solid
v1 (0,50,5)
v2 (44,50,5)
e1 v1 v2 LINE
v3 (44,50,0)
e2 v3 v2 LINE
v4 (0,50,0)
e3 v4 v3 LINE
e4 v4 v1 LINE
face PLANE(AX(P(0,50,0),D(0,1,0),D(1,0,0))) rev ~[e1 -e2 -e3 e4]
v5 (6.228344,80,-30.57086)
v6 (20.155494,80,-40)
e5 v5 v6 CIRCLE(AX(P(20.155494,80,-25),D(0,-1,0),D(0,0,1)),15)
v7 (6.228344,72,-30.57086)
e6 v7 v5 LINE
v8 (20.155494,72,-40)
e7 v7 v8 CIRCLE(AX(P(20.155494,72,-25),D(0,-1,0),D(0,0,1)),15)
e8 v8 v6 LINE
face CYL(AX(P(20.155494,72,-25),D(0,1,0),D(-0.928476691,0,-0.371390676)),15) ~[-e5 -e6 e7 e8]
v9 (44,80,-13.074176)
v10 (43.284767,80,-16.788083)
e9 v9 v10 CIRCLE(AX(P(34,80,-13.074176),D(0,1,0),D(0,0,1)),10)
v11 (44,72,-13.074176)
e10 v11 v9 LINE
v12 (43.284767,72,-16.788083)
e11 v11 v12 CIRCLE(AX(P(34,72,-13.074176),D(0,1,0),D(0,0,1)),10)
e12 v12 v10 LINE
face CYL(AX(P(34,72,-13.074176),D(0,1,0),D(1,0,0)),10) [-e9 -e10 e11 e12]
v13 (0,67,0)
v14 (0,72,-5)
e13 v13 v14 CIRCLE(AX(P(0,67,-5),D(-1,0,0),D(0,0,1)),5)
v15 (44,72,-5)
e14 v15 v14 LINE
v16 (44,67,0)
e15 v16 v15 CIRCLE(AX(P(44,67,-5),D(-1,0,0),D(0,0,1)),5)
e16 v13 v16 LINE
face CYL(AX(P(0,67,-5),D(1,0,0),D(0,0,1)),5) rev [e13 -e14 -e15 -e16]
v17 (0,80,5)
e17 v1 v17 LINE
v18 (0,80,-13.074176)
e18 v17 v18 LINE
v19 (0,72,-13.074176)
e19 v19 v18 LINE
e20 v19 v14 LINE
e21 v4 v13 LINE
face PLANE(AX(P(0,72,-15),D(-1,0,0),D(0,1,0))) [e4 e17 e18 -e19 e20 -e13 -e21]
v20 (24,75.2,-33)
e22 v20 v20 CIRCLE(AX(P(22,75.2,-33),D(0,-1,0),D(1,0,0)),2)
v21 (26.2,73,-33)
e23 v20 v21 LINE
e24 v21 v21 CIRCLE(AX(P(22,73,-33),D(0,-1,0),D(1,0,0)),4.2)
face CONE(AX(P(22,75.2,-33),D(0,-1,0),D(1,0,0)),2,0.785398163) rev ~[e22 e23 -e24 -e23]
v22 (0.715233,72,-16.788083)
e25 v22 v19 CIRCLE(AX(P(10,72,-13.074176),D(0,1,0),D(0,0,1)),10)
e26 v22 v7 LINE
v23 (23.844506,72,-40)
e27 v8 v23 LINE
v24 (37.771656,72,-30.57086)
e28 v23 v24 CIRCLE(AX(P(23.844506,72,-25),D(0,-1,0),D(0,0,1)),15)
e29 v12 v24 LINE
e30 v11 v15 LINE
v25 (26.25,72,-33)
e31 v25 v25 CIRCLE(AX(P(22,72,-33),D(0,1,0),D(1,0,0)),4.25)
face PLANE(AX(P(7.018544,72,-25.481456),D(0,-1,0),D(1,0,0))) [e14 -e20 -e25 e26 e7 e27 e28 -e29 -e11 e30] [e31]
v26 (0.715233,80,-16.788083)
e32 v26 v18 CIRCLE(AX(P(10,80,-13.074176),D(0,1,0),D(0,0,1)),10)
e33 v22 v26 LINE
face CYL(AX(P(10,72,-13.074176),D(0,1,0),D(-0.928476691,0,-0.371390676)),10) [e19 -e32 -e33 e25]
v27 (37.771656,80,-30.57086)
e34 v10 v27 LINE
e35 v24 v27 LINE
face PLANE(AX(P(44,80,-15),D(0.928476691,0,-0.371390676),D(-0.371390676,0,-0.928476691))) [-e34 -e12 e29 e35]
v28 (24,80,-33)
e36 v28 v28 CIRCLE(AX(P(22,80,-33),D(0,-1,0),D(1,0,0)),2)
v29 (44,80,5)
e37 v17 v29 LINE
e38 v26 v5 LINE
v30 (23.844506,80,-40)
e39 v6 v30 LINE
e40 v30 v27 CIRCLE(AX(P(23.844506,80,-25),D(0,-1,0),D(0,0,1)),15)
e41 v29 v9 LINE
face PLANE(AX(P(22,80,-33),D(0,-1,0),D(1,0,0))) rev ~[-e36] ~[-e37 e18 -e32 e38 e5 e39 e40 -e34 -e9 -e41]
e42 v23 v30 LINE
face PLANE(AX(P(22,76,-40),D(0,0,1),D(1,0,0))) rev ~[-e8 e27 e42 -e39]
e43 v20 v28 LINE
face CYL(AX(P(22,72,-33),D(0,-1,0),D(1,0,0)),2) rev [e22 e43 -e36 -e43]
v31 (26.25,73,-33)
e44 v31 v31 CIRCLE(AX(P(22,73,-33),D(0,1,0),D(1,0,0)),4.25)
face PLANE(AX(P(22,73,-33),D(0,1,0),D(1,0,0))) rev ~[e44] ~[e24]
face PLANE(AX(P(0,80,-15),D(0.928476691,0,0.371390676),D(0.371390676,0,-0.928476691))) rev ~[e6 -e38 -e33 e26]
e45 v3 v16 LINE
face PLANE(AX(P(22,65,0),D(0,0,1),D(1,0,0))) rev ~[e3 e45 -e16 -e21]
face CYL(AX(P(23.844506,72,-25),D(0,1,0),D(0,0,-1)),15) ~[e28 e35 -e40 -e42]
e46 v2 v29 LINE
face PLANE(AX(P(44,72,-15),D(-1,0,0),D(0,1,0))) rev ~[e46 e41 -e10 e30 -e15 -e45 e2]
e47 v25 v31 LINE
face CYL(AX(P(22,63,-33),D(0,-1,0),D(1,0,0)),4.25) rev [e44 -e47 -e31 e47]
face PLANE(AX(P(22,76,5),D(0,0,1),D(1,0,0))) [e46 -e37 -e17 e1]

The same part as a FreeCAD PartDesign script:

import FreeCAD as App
import Part
import Sketcher

V = App.Vector
Q = App.Units.Quantity


def edges_at(feature, points):
    """Names of the edges that pass closest to the given points."""
    edges = feature.Shape.Edges
    near = lambda p: min(range(len(edges)), key=lambda i: edges[i].distToShape(Part.Vertex(*p))[0])
    return sorted({f"Edge{near(p) + 1}" for p in points})

doc = App.newDocument("Part")
body = doc.addObject("PartDesign::Body", "Body")

sketch1 = doc.addObject("Sketcher::SketchObject", "Sketch")
body.addObject(sketch1)
sketch1.AttachmentSupport = (doc.XZ_Plane, [""])
sketch1.MapMode = "FlatFace"
sketch1.AttachmentOffset = App.Placement(V(0, 0, -80), App.Rotation())
sketch1.addGeometry(Part.Circle(V(22, -33, 0), V(0, 0, 1), 2), False)
sketch1.addConstraint([
    Sketcher.Constraint("Diameter", 0, Q("4 mm")),
    Sketcher.Constraint("DistanceX", -1, 1, 0, 3, Q("22 mm")),
    Sketcher.Constraint("DistanceY", 0, 3, -1, 1, Q("33 mm")),
])
pad1 = doc.addObject("PartDesign::Pad", "Pad")
body.addObject(pad1)
pad1.Profile = sketch1
pad1.Length = 10
body2 = doc.addObject("PartDesign::Body", "Body001")

sketch2 = doc.addObject("Sketcher::SketchObject", "Sketch001")
body2.addObject(sketch2)
sketch2.AttachmentSupport = (doc.getObject("XZ_Plane001"), [""])
sketch2.MapMode = "FlatFace"
sketch2.AttachmentOffset = App.Placement(V(0, 0, -89), App.Rotation())
sketch2.addGeometry(Part.Circle(V(22, -33, 0), V(0, 0, 1), 4.25), False)
sketch2.addConstraint([
    Sketcher.Constraint("Diameter", 0, Q("8.5 mm")),
    Sketcher.Constraint("DistanceX", -1, 1, 0, 3, Q("22 mm")),
    Sketcher.Constraint("DistanceY", 0, 3, -1, 1, Q("33 mm")),
])
pad2 = doc.addObject("PartDesign::Pad", "Pad001")
body2.addObject(pad2)
pad2.Profile = sketch2
pad2.Length = 10
doc.recompute()

boolean = doc.addObject("PartDesign::Boolean", "Boolean")
body2.addObject(boolean)
boolean.Type = "Fuse"
boolean.addObjects([body])
body3 = doc.addObject("PartDesign::Body", "Body002")
doc.recompute()

body2.Placement = App.Placement(V(0, 152, -66), App.Rotation(V(1, 0, 0), 180))
boolean2 = doc.addObject("PartDesign::Boolean", "Boolean001")
body3.addObject(boolean2)
boolean2.Type = "Fuse"
boolean2.addObjects([body2])
body4 = doc.addObject("PartDesign::Body", "Body003")

sketch3 = doc.addObject("Sketcher::SketchObject", "Sketch002")
body4.addObject(sketch3)
sketch3.AttachmentSupport = (doc.getObject("XZ_Plane003"), [""])
sketch3.MapMode = "FlatFace"
sketch3.AttachmentOffset = App.Placement(V(0, 0, -80), App.Rotation())
sketch3.addGeometry(Part.Circle(V(22, -33, 0), V(0, 0, 1), 4.25), False)
sketch3.addConstraint([
    Sketcher.Constraint("Diameter", 0, Q("8.5 mm")),
    Sketcher.Constraint("DistanceX", -1, 1, 0, 3, Q("22 mm")),
    Sketcher.Constraint("DistanceY", 0, 3, -1, 1, Q("33 mm")),
])
pad3 = doc.addObject("PartDesign::Pad", "Pad002")
body4.addObject(pad3)
pad3.Profile = sketch3
pad3.Length = 10
body5 = doc.addObject("PartDesign::Body", "Body004")

sketch4 = doc.addObject("Sketcher::SketchObject", "Sketch003")
body5.addObject(sketch4)
sketch4.AttachmentSupport = (doc.getObject("XZ_Plane004"), [""])
sketch4.MapMode = "FlatFace"
sketch4.AttachmentOffset = App.Placement(V(0, 0, -80), App.Rotation())
sketch4.addGeometry(Part.Circle(V(22, -33, 0), V(0, 0, 1), 2), False)
sketch4.addConstraint([
    Sketcher.Constraint("Diameter", 0, Q("4 mm")),
    Sketcher.Constraint("DistanceX", -1, 1, 0, 3, Q("22 mm")),
    Sketcher.Constraint("DistanceY", 0, 3, -1, 1, Q("33 mm")),
])
pad4 = doc.addObject("PartDesign::Pad", "Pad003")
body5.addObject(pad4)
pad4.Profile = sketch4
pad4.Length = 10
body6 = doc.addObject("PartDesign::Body", "Body005")

sketch5 = doc.addObject("Sketcher::SketchObject", "Sketch004")
body6.addObject(sketch5)
sketch5.AttachmentSupport = (doc.getObject("XZ_Plane005"), [""])
sketch5.MapMode = "FlatFace"
sketch5.AttachmentOffset = App.Placement(V(0, 0, -89), App.Rotation())
sketch5.addGeometry(Part.Circle(V(22, -33, 0), V(0, 0, 1), 4.25), False)
sketch5.addConstraint([
    Sketcher.Constraint("Diameter", 0, Q("8.5 mm")),
    Sketcher.Constraint("DistanceX", -1, 1, 0, 3, Q("22 mm")),
    Sketcher.Constraint("DistanceY", 0, 3, -1, 1, Q("33 mm")),
])
pad5 = doc.addObject("PartDesign::Pad", "Pad004")
body6.addObject(pad5)
pad5.Profile = sketch5
pad5.Length = 10
doc.recompute()

boolean3 = doc.addObject("PartDesign::Boolean", "Boolean002")
body6.addObject(boolean3)
boolean3.Type = "Fuse"
boolean3.addObjects([body5])
body7 = doc.addObject("PartDesign::Body", "Body006")
body7.AllowCompound = True

sketch6 = doc.addObject("Sketcher::SketchObject", "Sketch005")
body7.addObject(sketch6)
sketch6.AttachmentSupport = (doc.getObject("XZ_Plane006"), [""])
sketch6.MapMode = "FlatFace"
sketch6.AttachmentOffset = App.Placement(V(0, 0, -80), App.Rotation())
sketch6.addGeometry([
    Part.LineSegment(V(44, -15, 0), V(34, -40, 0)),
    Part.LineSegment(V(34, -40, 0), V(34, -15, 0)),
    Part.LineSegment(V(34, -15, 0), V(44, -15, 0)),
    Part.LineSegment(V(0, -15, 0), V(10, -15, 0)),
    Part.LineSegment(V(10, -15, 0), V(10, -40, 0)),
    Part.LineSegment(V(10, -40, 0), V(0, -15, 0)),
], False)
sketch6.addConstraint([
    Sketcher.Constraint("Coincident", 0, 2, 1, 1),
    Sketcher.Constraint("Coincident", 1, 2, 2, 1),
    Sketcher.Constraint("Coincident", 2, 2, 0, 1),
    Sketcher.Constraint("Coincident", 3, 2, 4, 1),
    Sketcher.Constraint("Coincident", 4, 2, 5, 1),
    Sketcher.Constraint("Coincident", 5, 2, 3, 1),
    Sketcher.Constraint("Vertical", 1),
    Sketcher.Constraint("Horizontal", 2),
    Sketcher.Constraint("Horizontal", 3),
    Sketcher.Constraint("Vertical", 4),
    Sketcher.Constraint("PointOnObject", 5, 2, -2),
    Sketcher.Constraint("Horizontal", 2, 2, 3, 2),
    Sketcher.Constraint("Horizontal", 0, 2, 4, 2),
    Sketcher.Constraint("Equal", 2, 3),
    Sketcher.Constraint("DistanceX", 2, 1, 2, 2, Q("10 mm")),
    Sketcher.Constraint("DistanceY", 1, 1, 1, 2, Q("25 mm")),
    Sketcher.Constraint("DistanceX", -1, 1, 0, 2, Q("34 mm")),
    Sketcher.Constraint("DistanceY", 0, 2, -1, 1, Q("40 mm")),
])
pad6 = doc.addObject("PartDesign::Pad", "Pad005")
body7.addObject(pad6)
pad6.Profile = sketch6
pad6.Length = 8
body8 = doc.addObject("PartDesign::Body", "Body007")

sketch7 = doc.addObject("Sketcher::SketchObject", "Sketch006")
body8.addObject(sketch7)
sketch7.AttachmentSupport = (doc.getObject("XY_Plane007"), [""])
sketch7.MapMode = "FlatFace"
sketch7.AttachmentOffset = App.Placement(V(0, 0, -40), App.Rotation())
sketch7.addGeometry([
    Part.LineSegment(V(10, 80, 0), V(10, 72, 0)),
    Part.LineSegment(V(10, 72, 0), V(34, 72, 0)),
    Part.LineSegment(V(34, 72, 0), V(34, 80, 0)),
    Part.LineSegment(V(34, 80, 0), V(10, 80, 0)),
], False)
sketch7.addConstraint([
    Sketcher.Constraint("Coincident", 0, 2, 1, 1),
    Sketcher.Constraint("Coincident", 1, 2, 2, 1),
    Sketcher.Constraint("Coincident", 2, 2, 3, 1),
    Sketcher.Constraint("Coincident", 3, 2, 0, 1),
    Sketcher.Constraint("Vertical", 0),
    Sketcher.Constraint("Horizontal", 1),
    Sketcher.Constraint("Vertical", 2),
    Sketcher.Constraint("Horizontal", 3),
    Sketcher.Constraint("DistanceX", 1, 1, 1, 2, Q("24 mm")),
    Sketcher.Constraint("DistanceY", 0, 2, 0, 1, Q("8 mm")),
    Sketcher.Constraint("DistanceX", -1, 1, 0, 2, Q("10 mm")),
    Sketcher.Constraint("DistanceY", -1, 1, 0, 2, Q("72 mm")),
])
pad7 = doc.addObject("PartDesign::Pad", "Pad006")
body8.addObject(pad7)
pad7.Profile = sketch7
pad7.Length = 45
body9 = doc.addObject("PartDesign::Body", "Body008")

sketch8 = doc.addObject("Sketcher::SketchObject", "Sketch007")
body9.addObject(sketch8)
sketch8.AttachmentSupport = (doc.getObject("XY_Plane008"), [""])
sketch8.MapMode = "FlatFace"
sketch8.AttachmentOffset = App.Placement(V(0, 0, -15), App.Rotation())
sketch8.addGeometry([
    Part.LineSegment(V(0, 80, 0), V(0, 72, 0)),
    Part.LineSegment(V(0, 72, 0), V(44, 72, 0)),
    Part.LineSegment(V(44, 72, 0), V(44, 80, 0)),
    Part.LineSegment(V(44, 80, 0), V(0, 80, 0)),
], False)
sketch8.addConstraint([
    Sketcher.Constraint("Coincident", 0, 2, 1, 1),
    Sketcher.Constraint("Coincident", 1, 2, 2, 1),
    Sketcher.Constraint("Coincident", 2, 2, 3, 1),
    Sketcher.Constraint("Coincident", 3, 2, 0, 1),
    Sketcher.Constraint("Vertical", 0),
    Sketcher.Constraint("Horizontal", 1),
    Sketcher.Constraint("Vertical", 2),
    Sketcher.Constraint("Horizontal", 3),
    Sketcher.Constraint("PointOnObject", 0, 2, -2),
    Sketcher.Constraint("DistanceX", 1, 1, 1, 2, Q("44 mm")),
    Sketcher.Constraint("DistanceY", 0, 2, 0, 1, Q("8 mm")),
    Sketcher.Constraint("DistanceY", -1, 1, 0, 2, Q("72 mm")),
])
pad8 = doc.addObject("PartDesign::Pad", "Pad007")
body9.addObject(pad8)
pad8.Profile = sketch8
pad8.Length = 15
body10 = doc.addObject("PartDesign::Body", "Body009")

sketch9 = doc.addObject("Sketcher::SketchObject", "Sketch008")
body10.addObject(sketch9)
sketch9.AttachmentSupport = (doc.getObject("XY_Plane009"), [""])
sketch9.MapMode = "FlatFace"
sketch9.addGeometry([
    Part.LineSegment(V(0, 80, 0), V(0, 50, 0)),
    Part.LineSegment(V(0, 50, 0), V(44, 50, 0)),
    Part.LineSegment(V(44, 50, 0), V(44, 80, 0)),
    Part.LineSegment(V(44, 80, 0), V(0, 80, 0)),
], False)
sketch9.addConstraint([
    Sketcher.Constraint("Coincident", 0, 2, 1, 1),
    Sketcher.Constraint("Coincident", 1, 2, 2, 1),
    Sketcher.Constraint("Coincident", 2, 2, 3, 1),
    Sketcher.Constraint("Coincident", 3, 2, 0, 1),
    Sketcher.Constraint("Vertical", 0),
    Sketcher.Constraint("Horizontal", 1),
    Sketcher.Constraint("Vertical", 2),
    Sketcher.Constraint("Horizontal", 3),
    Sketcher.Constraint("PointOnObject", 0, 2, -2),
    Sketcher.Constraint("DistanceX", 1, 1, 1, 2, Q("44 mm")),
    Sketcher.Constraint("DistanceY", 0, 2, 0, 1, Q("30 mm")),
    Sketcher.Constraint("DistanceY", -1, 1, 0, 2, Q("50 mm")),
])
pad9 = doc.addObject("PartDesign::Pad", "Pad008")
body10.addObject(pad9)
pad9.Profile = sketch9
pad9.Length = 5
doc.recompute()

boolean4 = doc.addObject("PartDesign::Boolean", "Boolean003")
body10.addObject(boolean4)
boolean4.Type = "Fuse"
boolean4.addObjects([body9])
doc.recompute()

fillet = doc.addObject("PartDesign::Fillet", "Fillet")
body10.addObject(fillet)
fillet.Base = (boolean4, edges_at(boolean4, [(22, 72, 0)]))
fillet.Radius = 5
doc.recompute()

boolean5 = doc.addObject("PartDesign::Boolean", "Boolean004")
body10.addObject(boolean5)
boolean5.Type = "Fuse"
boolean5.addObjects([body8])
doc.recompute()

boolean6 = doc.addObject("PartDesign::Boolean", "Boolean005")
body10.addObject(boolean6)
boolean6.Type = "Fuse"
boolean6.addObjects([body7])
doc.recompute()

fillet2 = doc.addObject("PartDesign::Fillet", "Fillet001")
body10.addObject(fillet2)
fillet2.Base = (boolean6, edges_at(boolean6, [(10, 76, -40), (34, 76, -40)]))
fillet2.Radius = 15
doc.recompute()

fillet3 = doc.addObject("PartDesign::Fillet", "Fillet002")
body10.addObject(fillet3)
fillet3.Base = (fillet2, edges_at(fillet2, [(44, 76, -15), (0, 76, -15)]))
fillet3.Radius = 10
doc.recompute()

boolean7 = doc.addObject("PartDesign::Boolean", "Boolean006")
body10.addObject(boolean7)
boolean7.Type = "Cut"
boolean7.addObjects([body6])
doc.recompute()

chamfer = doc.addObject("PartDesign::Chamfer", "Chamfer")
body10.addObject(chamfer)
chamfer.Base = (boolean7, edges_at(boolean7, [(20, 79, -33)]))
chamfer.Size = 2.2
doc.recompute()

boolean8 = doc.addObject("PartDesign::Boolean", "Boolean007")
body10.addObject(boolean8)
boolean8.Type = "Fuse"
boolean8.addObjects([body4])
doc.recompute()

boolean9 = doc.addObject("PartDesign::Boolean", "Boolean008")
body10.addObject(boolean9)
boolean9.Type = "Cut"
boolean9.addObjects([body3])
doc.recompute()

chamfer2 = doc.addObject("PartDesign::Chamfer", "Chamfer001")
body10.addObject(chamfer2)
chamfer2.Base = (boolean9, edges_at(boolean9, [(20, 73, -33)]))
chamfer2.Size = 2.2

doc.recompute()
